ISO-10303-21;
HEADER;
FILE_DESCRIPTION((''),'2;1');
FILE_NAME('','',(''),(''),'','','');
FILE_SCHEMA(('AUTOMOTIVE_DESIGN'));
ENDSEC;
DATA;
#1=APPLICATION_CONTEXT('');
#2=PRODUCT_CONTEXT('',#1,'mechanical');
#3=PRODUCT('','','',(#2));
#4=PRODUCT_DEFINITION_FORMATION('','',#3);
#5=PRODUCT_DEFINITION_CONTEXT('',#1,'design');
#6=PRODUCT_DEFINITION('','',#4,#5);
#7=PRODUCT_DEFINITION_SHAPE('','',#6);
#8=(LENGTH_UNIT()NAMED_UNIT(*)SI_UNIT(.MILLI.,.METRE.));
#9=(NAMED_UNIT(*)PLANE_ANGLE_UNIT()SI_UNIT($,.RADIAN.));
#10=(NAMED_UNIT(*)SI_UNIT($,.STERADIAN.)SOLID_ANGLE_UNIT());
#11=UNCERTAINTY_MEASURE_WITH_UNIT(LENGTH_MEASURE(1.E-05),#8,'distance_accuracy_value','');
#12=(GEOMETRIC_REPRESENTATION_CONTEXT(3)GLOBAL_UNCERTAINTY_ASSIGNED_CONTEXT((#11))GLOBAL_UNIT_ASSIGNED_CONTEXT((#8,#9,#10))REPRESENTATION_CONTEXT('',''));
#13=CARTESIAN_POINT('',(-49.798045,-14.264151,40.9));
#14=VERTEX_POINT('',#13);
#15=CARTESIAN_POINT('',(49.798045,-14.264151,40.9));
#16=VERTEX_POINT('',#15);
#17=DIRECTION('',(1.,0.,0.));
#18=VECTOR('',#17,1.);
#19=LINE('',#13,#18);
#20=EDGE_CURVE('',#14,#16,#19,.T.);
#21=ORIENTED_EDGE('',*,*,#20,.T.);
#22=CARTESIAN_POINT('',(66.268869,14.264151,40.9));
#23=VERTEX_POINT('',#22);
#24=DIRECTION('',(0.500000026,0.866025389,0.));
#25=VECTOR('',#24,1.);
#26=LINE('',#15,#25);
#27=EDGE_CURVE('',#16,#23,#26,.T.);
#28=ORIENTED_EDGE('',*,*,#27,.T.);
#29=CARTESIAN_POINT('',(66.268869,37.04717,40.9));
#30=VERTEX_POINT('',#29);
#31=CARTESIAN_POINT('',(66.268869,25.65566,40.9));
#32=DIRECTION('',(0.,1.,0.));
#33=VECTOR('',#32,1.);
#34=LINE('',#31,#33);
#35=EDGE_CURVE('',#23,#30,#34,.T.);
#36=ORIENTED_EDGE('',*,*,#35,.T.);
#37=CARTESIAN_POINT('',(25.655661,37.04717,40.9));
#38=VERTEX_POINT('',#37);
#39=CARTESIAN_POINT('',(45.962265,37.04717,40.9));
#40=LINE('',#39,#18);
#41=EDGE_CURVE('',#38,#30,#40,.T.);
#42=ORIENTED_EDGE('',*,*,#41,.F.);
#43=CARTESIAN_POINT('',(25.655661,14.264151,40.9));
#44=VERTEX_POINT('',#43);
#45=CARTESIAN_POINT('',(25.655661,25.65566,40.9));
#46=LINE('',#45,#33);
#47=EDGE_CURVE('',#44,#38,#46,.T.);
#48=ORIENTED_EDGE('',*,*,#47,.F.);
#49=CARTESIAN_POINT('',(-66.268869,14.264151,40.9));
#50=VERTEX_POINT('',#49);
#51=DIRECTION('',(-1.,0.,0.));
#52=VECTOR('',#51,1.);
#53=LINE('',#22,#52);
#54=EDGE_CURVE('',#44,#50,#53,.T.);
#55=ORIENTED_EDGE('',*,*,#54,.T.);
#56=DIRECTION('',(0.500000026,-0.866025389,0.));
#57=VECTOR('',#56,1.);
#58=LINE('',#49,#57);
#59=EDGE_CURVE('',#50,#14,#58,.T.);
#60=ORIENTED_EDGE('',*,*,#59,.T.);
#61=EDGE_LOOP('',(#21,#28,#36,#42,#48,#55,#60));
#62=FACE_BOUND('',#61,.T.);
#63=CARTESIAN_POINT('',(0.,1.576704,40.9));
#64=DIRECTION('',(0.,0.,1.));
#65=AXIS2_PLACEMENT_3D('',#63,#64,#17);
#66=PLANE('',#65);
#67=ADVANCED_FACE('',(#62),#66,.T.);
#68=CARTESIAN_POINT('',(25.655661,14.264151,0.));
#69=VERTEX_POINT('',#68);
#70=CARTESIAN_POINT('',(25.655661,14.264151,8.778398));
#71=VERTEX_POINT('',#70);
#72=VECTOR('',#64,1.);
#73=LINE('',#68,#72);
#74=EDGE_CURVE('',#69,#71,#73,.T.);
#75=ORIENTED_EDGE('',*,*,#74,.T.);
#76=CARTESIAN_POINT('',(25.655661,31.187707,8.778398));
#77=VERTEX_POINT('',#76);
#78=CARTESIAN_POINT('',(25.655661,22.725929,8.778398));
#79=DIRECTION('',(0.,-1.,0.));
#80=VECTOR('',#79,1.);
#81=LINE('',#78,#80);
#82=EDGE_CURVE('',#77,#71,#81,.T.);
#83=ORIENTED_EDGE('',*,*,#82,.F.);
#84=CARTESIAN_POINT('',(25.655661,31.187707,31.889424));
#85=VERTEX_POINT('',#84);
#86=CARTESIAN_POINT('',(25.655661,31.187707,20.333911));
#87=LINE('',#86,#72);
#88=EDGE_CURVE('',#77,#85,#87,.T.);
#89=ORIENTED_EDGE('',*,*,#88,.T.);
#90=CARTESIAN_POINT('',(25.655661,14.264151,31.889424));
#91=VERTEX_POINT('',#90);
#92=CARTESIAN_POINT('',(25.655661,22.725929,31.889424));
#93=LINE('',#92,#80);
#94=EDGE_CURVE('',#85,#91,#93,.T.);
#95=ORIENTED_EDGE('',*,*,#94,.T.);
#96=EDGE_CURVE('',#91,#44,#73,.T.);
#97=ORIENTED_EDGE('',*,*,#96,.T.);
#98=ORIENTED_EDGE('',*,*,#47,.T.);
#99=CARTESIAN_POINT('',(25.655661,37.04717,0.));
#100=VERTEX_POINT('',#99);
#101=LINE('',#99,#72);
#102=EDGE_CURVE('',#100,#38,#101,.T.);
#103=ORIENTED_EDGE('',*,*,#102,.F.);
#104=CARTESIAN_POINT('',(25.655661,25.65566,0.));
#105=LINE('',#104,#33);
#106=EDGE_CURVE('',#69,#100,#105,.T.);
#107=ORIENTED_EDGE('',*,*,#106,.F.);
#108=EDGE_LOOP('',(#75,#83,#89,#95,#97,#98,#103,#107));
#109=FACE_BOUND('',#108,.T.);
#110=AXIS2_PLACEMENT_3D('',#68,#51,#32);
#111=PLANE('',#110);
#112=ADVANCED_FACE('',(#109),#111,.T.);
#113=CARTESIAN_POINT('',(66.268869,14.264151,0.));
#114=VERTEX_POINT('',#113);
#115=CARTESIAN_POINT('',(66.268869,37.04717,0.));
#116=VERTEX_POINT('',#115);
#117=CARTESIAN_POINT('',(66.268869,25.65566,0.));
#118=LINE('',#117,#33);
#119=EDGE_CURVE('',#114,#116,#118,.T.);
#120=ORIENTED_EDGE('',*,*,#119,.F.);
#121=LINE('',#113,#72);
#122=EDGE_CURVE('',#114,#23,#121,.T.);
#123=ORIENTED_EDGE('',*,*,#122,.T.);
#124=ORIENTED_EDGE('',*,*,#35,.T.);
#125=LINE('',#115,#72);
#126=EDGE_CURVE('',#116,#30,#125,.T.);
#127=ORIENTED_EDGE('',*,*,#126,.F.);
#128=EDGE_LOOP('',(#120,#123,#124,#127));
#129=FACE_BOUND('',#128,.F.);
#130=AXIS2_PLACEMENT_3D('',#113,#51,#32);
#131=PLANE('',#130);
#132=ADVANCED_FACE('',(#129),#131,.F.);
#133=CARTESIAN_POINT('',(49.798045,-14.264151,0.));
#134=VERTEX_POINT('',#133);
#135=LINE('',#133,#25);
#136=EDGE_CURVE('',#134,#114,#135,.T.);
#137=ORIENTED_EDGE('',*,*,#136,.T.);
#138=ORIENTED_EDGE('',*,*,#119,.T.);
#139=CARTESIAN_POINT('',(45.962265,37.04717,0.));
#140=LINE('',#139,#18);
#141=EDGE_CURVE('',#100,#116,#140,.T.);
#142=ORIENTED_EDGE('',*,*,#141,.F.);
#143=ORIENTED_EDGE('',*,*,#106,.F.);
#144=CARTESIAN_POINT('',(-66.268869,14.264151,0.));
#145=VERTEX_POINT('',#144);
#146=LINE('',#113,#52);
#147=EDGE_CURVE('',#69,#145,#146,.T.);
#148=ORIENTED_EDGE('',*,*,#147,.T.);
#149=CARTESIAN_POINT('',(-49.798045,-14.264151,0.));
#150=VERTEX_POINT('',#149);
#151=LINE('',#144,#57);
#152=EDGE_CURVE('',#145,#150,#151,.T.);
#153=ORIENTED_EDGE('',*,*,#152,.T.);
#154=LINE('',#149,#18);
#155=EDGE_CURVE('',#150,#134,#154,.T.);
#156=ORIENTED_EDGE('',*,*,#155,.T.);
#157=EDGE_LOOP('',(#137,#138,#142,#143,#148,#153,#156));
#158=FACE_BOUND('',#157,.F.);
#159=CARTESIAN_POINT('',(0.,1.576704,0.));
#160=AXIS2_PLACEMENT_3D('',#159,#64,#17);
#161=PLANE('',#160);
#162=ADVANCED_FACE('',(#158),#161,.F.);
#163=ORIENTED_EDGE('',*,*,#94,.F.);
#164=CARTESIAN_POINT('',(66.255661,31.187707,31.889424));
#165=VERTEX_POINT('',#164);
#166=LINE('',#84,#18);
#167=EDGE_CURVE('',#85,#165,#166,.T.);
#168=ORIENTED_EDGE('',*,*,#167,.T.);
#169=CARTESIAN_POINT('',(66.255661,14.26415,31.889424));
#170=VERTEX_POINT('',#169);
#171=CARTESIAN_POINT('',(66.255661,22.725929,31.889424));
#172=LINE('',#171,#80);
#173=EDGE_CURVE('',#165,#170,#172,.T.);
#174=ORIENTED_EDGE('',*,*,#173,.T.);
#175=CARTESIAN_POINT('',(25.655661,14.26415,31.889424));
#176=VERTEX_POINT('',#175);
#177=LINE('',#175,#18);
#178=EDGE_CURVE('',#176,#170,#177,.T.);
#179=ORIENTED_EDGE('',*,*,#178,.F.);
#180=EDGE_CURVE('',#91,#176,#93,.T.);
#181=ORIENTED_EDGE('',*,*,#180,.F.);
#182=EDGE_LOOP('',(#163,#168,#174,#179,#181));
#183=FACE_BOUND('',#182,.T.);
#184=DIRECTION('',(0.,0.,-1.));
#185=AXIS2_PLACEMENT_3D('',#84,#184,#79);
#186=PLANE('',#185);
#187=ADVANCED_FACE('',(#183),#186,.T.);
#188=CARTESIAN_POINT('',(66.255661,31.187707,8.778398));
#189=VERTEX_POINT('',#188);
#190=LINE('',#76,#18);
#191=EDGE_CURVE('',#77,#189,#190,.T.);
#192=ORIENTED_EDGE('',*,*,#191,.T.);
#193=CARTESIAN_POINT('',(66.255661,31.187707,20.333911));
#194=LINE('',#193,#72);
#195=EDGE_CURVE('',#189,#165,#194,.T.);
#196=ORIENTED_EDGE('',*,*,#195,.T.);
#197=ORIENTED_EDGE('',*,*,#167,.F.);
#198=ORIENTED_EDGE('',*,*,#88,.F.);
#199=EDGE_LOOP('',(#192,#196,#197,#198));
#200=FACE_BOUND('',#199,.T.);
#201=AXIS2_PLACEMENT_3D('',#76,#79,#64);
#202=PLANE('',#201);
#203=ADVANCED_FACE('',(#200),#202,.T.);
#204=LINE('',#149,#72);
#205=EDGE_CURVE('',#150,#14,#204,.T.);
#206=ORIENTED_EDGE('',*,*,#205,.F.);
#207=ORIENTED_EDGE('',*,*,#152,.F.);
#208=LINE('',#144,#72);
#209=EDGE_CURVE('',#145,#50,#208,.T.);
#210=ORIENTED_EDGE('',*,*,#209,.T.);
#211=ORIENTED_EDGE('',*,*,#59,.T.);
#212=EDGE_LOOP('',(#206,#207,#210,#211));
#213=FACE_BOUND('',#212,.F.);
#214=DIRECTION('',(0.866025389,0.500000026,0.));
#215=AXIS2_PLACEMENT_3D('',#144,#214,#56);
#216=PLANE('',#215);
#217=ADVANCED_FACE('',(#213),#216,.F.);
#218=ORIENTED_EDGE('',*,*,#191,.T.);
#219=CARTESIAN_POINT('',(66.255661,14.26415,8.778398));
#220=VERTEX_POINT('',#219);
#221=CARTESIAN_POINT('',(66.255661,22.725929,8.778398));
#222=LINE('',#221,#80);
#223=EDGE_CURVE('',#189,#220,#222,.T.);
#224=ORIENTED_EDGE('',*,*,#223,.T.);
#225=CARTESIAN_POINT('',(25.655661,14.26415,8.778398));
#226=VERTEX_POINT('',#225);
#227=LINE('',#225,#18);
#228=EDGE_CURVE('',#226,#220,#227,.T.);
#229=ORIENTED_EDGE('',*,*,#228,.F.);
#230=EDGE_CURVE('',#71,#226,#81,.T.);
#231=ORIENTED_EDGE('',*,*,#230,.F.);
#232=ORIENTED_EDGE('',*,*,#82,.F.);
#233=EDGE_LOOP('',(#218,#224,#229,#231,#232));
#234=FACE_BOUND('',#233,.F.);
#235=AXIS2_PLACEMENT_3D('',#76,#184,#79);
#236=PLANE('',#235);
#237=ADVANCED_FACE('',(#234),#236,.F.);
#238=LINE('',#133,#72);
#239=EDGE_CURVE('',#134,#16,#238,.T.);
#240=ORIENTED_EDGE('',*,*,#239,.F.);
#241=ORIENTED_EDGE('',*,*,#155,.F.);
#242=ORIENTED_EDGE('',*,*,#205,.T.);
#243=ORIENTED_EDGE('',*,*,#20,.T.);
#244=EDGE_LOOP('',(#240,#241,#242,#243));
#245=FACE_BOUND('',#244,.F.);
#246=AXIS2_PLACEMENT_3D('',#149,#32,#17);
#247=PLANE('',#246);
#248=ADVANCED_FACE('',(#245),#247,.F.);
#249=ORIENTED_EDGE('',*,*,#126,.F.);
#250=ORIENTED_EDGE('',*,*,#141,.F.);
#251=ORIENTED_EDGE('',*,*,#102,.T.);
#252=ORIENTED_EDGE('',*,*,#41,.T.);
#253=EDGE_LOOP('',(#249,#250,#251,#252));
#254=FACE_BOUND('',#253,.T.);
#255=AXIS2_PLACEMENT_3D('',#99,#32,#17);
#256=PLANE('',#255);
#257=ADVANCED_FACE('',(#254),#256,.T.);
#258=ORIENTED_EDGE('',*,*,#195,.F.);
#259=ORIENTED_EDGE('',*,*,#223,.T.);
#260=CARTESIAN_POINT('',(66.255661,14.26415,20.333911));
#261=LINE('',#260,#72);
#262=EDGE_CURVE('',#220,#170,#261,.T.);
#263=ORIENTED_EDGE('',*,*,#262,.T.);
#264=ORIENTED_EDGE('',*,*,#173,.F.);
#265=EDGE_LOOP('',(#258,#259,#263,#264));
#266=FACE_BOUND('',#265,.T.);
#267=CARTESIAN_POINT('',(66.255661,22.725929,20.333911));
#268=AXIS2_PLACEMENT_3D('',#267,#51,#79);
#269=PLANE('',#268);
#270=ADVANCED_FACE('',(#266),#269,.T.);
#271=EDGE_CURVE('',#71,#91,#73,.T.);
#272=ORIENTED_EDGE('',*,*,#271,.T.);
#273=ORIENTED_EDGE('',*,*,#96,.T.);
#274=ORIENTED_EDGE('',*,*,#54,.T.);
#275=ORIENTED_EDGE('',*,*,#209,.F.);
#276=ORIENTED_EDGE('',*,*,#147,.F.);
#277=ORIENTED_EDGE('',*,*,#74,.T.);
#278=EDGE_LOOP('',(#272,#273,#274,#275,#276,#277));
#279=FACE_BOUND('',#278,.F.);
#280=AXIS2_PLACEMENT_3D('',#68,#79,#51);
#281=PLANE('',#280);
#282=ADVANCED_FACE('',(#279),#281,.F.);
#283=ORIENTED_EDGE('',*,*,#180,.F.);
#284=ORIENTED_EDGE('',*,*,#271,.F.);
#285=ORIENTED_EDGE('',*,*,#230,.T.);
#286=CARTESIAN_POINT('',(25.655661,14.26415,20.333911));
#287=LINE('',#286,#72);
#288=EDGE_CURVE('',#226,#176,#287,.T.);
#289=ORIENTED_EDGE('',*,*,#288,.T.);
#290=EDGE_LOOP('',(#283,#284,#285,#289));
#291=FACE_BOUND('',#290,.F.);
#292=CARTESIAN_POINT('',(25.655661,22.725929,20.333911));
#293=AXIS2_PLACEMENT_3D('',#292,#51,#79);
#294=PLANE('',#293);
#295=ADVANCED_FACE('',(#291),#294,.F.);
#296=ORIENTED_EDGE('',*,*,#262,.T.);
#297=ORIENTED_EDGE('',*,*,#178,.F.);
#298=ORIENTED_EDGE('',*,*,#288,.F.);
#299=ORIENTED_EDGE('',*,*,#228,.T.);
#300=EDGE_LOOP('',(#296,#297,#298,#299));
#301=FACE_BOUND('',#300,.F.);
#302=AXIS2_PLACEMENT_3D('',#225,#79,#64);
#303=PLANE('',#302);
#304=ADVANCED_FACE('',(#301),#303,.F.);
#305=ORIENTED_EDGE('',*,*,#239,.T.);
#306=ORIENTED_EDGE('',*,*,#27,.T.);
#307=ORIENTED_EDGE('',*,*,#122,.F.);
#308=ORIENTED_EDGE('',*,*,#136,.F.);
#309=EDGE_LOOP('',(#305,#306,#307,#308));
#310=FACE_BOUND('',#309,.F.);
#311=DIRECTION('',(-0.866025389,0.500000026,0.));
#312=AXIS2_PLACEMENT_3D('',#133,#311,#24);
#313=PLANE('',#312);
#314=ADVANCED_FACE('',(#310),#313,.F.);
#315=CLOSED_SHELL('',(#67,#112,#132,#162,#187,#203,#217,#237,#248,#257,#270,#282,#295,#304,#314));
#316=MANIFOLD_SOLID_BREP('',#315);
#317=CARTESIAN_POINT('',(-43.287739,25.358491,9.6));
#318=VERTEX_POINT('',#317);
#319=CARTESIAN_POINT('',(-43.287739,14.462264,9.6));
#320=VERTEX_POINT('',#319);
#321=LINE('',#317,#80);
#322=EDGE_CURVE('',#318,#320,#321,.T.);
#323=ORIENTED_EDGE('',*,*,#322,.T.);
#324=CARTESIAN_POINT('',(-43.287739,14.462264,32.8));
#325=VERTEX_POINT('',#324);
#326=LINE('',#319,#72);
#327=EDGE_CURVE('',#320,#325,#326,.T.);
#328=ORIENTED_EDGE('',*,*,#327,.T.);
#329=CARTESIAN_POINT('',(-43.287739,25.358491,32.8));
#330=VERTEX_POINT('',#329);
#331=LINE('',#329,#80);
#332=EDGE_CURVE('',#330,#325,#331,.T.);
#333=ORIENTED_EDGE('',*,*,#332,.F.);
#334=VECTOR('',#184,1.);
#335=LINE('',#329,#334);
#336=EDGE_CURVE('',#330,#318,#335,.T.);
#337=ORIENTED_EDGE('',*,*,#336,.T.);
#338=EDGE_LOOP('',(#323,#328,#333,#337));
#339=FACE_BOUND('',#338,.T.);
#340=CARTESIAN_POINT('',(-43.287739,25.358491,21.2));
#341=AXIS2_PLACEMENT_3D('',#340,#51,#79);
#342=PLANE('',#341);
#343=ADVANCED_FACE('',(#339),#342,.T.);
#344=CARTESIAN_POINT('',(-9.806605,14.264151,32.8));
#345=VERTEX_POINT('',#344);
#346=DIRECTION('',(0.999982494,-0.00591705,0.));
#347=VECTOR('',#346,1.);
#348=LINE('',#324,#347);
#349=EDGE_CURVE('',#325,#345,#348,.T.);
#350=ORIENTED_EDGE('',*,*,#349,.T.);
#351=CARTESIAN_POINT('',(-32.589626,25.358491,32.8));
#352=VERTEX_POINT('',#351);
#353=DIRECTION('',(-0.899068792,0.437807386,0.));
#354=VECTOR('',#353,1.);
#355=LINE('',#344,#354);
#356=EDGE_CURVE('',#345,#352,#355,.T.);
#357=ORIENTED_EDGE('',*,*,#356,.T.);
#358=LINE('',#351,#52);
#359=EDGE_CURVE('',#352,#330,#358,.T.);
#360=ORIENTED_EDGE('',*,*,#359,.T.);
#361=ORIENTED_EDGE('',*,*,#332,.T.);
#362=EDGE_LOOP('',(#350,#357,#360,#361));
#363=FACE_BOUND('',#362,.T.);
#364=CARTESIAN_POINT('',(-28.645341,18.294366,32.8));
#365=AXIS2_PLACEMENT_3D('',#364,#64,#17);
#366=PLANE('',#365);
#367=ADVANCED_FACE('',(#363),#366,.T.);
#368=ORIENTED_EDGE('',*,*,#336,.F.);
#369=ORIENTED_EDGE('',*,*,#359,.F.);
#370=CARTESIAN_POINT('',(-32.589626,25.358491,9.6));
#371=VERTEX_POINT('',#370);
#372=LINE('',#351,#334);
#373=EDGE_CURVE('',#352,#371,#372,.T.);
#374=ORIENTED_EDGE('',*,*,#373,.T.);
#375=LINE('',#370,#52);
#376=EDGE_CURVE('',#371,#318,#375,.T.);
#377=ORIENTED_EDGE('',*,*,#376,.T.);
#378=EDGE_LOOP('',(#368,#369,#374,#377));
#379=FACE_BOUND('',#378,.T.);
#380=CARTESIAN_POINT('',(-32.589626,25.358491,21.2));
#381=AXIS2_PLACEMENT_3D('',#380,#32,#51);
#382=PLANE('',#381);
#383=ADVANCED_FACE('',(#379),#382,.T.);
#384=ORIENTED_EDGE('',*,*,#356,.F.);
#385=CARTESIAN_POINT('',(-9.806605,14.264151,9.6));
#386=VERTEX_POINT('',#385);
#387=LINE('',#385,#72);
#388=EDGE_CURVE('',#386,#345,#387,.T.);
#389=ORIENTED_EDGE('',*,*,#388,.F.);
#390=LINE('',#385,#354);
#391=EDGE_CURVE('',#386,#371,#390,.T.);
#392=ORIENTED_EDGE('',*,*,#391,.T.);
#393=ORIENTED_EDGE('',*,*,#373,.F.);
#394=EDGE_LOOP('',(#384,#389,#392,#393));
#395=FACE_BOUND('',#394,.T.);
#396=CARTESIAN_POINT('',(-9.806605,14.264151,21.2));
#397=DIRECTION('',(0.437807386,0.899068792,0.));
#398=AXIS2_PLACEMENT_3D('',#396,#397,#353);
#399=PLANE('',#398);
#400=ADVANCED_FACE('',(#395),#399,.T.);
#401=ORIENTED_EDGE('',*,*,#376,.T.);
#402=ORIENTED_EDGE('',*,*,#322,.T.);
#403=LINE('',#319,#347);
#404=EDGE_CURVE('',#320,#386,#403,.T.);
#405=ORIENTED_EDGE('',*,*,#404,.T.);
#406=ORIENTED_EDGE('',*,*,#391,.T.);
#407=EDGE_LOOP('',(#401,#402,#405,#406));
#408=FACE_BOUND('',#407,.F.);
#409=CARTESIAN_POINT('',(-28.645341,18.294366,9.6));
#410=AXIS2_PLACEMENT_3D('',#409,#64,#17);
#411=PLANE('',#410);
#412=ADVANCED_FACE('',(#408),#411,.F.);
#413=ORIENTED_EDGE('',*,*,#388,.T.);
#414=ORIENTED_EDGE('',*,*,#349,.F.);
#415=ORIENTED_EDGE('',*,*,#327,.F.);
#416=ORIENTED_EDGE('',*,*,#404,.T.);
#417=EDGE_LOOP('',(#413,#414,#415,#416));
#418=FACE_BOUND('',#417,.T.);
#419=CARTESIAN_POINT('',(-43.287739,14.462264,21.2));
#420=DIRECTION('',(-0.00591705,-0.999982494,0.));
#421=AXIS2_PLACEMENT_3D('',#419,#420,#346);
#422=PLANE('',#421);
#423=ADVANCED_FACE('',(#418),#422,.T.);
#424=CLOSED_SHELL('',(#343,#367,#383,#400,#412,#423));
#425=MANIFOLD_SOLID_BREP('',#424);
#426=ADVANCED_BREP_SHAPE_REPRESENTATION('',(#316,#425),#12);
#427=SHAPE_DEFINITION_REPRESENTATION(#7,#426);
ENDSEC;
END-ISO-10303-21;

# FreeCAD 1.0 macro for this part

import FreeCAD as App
import Part
import Sketcher

V = App.Vector
Q = App.Units.Quantity


def add_polygon(sketch, points):
    """Adds a closed chain of lines whose ends are joined by coincident constraints."""
    first, n = sketch.GeometryCount, len(points)
    for a, b in zip(points, points[1:] + points[:1]):
        sketch.addGeometry(Part.LineSegment(App.Vector(*a, 0), App.Vector(*b, 0)), False)
    for i in range(n):
        sketch.addConstraint(Sketcher.Constraint("Coincident", first + i, 2, first + (i + 1) % n, 1))

doc = App.newDocument("Part")
body = doc.addObject("PartDesign::Body", "Body")

sketch1 = doc.addObject("Sketcher::SketchObject", "Sketch")
body.addObject(sketch1)
sketch1.AttachmentSupport = (doc.XY_Plane, [""])
sketch1.MapMode = "FlatFace"
add_polygon(sketch1, [(26, 14), (-66, 14), (-50, -14), (50, -14), (66, 14), (66, 37), (26, 37)])
sketch1.addConstraint([
    Sketcher.Constraint("Horizontal", 0),
    Sketcher.Constraint("Horizontal", 2),
    Sketcher.Constraint("Vertical", 4),
    Sketcher.Constraint("Horizontal", 5),
    Sketcher.Constraint("Vertical", 6),
    Sketcher.Constraint("Symmetric", 0, 2, 3, 2, -2),
    Sketcher.Constraint("Equal", 1, 3),
    Sketcher.Constraint("Angle", 1, Q("-59.999998 deg")),
    Sketcher.Constraint("DistanceX", 0, 2, 0, 1, 91.92453),
    Sketcher.Constraint("DistanceX", 2, 1, 2, 2, 99.59609),
    Sketcher.Constraint("DistanceY", 4, 1, 4, 2, 22.783019),
    Sketcher.Constraint("DistanceY", 1, 2, 0, 2, 28.528302),
    Sketcher.Constraint("DistanceY", -1, 1, 0, 2, 14.264151),
])
pad1 = doc.addObject("PartDesign::Pad", "Pad")
body.addObject(pad1)
pad1.Profile = sketch1
pad1.Length = 40.9

sketch2 = doc.addObject("Sketcher::SketchObject", "Sketch001")
body.addObject(sketch2)
sketch2.AttachmentSupport = (doc.YZ_Plane, [""])
sketch2.MapMode = "FlatFace"
sketch2.AttachmentOffset = App.Placement(V(0, 0, 25.655661), App.Rotation())
add_polygon(sketch2, [(31, 32), (31, 9), (14, 9), (14, 32)])
sketch2.addConstraint([
    Sketcher.Constraint("Vertical", 0),
    Sketcher.Constraint("Horizontal", 1),
    Sketcher.Constraint("Vertical", 2),
    Sketcher.Constraint("Horizontal", 3),
    Sketcher.Constraint("DistanceX", 1, 2, 1, 1, 16.923557),
    Sketcher.Constraint("DistanceY", 0, 2, 0, 1, 23.111026),
    Sketcher.Constraint("DistanceX", -1, 1, 1, 2, 14.26415),
    Sketcher.Constraint("DistanceY", -1, 1, 0, 2, 8.778398),
])
pocket1 = doc.addObject("PartDesign::Pocket", "Pocket")
body.addObject(pocket1)
pocket1.Profile = sketch2
pocket1.Length = 40.6
pocket1.Reversed = True
body2 = doc.addObject("PartDesign::Body", "Body001")

sketch3 = doc.addObject("Sketcher::SketchObject", "Sketch002")
body2.addObject(sketch3)
sketch3.AttachmentSupport = (doc.getObject("XY_Plane001"), [""])
sketch3.MapMode = "FlatFace"
sketch3.AttachmentOffset = App.Placement(V(0, 0, 21.2), App.Rotation())
add_polygon(sketch3, [(-43, 25), (-43, 14), (-10, 14), (-33, 25)])
sketch3.addConstraint([
    Sketcher.Constraint("Vertical", 0),
    Sketcher.Constraint("Horizontal", 3),
    Sketcher.Constraint("Distance", 1, 33.48172),
    Sketcher.Constraint("DistanceX", 3, 2, 3, 1, 10.698113),
    Sketcher.Constraint("DistanceY", 0, 2, 0, 1, 10.896227),
    Sketcher.Constraint("DistanceX", 0, 2, -1, 1, 43.287739),
    Sketcher.Constraint("DistanceY", -1, 1, 1, 2, 14.264151),
    Sketcher.Constraint("DistanceY", -1, 1, 2, 2, 25.358491),
])
pad2 = doc.addObject("PartDesign::Pad", "Pad001")
body2.addObject(pad2)
pad2.Profile = sketch3
pad2.Length = 23.2
pad2.Midplane = True

doc.recompute()
